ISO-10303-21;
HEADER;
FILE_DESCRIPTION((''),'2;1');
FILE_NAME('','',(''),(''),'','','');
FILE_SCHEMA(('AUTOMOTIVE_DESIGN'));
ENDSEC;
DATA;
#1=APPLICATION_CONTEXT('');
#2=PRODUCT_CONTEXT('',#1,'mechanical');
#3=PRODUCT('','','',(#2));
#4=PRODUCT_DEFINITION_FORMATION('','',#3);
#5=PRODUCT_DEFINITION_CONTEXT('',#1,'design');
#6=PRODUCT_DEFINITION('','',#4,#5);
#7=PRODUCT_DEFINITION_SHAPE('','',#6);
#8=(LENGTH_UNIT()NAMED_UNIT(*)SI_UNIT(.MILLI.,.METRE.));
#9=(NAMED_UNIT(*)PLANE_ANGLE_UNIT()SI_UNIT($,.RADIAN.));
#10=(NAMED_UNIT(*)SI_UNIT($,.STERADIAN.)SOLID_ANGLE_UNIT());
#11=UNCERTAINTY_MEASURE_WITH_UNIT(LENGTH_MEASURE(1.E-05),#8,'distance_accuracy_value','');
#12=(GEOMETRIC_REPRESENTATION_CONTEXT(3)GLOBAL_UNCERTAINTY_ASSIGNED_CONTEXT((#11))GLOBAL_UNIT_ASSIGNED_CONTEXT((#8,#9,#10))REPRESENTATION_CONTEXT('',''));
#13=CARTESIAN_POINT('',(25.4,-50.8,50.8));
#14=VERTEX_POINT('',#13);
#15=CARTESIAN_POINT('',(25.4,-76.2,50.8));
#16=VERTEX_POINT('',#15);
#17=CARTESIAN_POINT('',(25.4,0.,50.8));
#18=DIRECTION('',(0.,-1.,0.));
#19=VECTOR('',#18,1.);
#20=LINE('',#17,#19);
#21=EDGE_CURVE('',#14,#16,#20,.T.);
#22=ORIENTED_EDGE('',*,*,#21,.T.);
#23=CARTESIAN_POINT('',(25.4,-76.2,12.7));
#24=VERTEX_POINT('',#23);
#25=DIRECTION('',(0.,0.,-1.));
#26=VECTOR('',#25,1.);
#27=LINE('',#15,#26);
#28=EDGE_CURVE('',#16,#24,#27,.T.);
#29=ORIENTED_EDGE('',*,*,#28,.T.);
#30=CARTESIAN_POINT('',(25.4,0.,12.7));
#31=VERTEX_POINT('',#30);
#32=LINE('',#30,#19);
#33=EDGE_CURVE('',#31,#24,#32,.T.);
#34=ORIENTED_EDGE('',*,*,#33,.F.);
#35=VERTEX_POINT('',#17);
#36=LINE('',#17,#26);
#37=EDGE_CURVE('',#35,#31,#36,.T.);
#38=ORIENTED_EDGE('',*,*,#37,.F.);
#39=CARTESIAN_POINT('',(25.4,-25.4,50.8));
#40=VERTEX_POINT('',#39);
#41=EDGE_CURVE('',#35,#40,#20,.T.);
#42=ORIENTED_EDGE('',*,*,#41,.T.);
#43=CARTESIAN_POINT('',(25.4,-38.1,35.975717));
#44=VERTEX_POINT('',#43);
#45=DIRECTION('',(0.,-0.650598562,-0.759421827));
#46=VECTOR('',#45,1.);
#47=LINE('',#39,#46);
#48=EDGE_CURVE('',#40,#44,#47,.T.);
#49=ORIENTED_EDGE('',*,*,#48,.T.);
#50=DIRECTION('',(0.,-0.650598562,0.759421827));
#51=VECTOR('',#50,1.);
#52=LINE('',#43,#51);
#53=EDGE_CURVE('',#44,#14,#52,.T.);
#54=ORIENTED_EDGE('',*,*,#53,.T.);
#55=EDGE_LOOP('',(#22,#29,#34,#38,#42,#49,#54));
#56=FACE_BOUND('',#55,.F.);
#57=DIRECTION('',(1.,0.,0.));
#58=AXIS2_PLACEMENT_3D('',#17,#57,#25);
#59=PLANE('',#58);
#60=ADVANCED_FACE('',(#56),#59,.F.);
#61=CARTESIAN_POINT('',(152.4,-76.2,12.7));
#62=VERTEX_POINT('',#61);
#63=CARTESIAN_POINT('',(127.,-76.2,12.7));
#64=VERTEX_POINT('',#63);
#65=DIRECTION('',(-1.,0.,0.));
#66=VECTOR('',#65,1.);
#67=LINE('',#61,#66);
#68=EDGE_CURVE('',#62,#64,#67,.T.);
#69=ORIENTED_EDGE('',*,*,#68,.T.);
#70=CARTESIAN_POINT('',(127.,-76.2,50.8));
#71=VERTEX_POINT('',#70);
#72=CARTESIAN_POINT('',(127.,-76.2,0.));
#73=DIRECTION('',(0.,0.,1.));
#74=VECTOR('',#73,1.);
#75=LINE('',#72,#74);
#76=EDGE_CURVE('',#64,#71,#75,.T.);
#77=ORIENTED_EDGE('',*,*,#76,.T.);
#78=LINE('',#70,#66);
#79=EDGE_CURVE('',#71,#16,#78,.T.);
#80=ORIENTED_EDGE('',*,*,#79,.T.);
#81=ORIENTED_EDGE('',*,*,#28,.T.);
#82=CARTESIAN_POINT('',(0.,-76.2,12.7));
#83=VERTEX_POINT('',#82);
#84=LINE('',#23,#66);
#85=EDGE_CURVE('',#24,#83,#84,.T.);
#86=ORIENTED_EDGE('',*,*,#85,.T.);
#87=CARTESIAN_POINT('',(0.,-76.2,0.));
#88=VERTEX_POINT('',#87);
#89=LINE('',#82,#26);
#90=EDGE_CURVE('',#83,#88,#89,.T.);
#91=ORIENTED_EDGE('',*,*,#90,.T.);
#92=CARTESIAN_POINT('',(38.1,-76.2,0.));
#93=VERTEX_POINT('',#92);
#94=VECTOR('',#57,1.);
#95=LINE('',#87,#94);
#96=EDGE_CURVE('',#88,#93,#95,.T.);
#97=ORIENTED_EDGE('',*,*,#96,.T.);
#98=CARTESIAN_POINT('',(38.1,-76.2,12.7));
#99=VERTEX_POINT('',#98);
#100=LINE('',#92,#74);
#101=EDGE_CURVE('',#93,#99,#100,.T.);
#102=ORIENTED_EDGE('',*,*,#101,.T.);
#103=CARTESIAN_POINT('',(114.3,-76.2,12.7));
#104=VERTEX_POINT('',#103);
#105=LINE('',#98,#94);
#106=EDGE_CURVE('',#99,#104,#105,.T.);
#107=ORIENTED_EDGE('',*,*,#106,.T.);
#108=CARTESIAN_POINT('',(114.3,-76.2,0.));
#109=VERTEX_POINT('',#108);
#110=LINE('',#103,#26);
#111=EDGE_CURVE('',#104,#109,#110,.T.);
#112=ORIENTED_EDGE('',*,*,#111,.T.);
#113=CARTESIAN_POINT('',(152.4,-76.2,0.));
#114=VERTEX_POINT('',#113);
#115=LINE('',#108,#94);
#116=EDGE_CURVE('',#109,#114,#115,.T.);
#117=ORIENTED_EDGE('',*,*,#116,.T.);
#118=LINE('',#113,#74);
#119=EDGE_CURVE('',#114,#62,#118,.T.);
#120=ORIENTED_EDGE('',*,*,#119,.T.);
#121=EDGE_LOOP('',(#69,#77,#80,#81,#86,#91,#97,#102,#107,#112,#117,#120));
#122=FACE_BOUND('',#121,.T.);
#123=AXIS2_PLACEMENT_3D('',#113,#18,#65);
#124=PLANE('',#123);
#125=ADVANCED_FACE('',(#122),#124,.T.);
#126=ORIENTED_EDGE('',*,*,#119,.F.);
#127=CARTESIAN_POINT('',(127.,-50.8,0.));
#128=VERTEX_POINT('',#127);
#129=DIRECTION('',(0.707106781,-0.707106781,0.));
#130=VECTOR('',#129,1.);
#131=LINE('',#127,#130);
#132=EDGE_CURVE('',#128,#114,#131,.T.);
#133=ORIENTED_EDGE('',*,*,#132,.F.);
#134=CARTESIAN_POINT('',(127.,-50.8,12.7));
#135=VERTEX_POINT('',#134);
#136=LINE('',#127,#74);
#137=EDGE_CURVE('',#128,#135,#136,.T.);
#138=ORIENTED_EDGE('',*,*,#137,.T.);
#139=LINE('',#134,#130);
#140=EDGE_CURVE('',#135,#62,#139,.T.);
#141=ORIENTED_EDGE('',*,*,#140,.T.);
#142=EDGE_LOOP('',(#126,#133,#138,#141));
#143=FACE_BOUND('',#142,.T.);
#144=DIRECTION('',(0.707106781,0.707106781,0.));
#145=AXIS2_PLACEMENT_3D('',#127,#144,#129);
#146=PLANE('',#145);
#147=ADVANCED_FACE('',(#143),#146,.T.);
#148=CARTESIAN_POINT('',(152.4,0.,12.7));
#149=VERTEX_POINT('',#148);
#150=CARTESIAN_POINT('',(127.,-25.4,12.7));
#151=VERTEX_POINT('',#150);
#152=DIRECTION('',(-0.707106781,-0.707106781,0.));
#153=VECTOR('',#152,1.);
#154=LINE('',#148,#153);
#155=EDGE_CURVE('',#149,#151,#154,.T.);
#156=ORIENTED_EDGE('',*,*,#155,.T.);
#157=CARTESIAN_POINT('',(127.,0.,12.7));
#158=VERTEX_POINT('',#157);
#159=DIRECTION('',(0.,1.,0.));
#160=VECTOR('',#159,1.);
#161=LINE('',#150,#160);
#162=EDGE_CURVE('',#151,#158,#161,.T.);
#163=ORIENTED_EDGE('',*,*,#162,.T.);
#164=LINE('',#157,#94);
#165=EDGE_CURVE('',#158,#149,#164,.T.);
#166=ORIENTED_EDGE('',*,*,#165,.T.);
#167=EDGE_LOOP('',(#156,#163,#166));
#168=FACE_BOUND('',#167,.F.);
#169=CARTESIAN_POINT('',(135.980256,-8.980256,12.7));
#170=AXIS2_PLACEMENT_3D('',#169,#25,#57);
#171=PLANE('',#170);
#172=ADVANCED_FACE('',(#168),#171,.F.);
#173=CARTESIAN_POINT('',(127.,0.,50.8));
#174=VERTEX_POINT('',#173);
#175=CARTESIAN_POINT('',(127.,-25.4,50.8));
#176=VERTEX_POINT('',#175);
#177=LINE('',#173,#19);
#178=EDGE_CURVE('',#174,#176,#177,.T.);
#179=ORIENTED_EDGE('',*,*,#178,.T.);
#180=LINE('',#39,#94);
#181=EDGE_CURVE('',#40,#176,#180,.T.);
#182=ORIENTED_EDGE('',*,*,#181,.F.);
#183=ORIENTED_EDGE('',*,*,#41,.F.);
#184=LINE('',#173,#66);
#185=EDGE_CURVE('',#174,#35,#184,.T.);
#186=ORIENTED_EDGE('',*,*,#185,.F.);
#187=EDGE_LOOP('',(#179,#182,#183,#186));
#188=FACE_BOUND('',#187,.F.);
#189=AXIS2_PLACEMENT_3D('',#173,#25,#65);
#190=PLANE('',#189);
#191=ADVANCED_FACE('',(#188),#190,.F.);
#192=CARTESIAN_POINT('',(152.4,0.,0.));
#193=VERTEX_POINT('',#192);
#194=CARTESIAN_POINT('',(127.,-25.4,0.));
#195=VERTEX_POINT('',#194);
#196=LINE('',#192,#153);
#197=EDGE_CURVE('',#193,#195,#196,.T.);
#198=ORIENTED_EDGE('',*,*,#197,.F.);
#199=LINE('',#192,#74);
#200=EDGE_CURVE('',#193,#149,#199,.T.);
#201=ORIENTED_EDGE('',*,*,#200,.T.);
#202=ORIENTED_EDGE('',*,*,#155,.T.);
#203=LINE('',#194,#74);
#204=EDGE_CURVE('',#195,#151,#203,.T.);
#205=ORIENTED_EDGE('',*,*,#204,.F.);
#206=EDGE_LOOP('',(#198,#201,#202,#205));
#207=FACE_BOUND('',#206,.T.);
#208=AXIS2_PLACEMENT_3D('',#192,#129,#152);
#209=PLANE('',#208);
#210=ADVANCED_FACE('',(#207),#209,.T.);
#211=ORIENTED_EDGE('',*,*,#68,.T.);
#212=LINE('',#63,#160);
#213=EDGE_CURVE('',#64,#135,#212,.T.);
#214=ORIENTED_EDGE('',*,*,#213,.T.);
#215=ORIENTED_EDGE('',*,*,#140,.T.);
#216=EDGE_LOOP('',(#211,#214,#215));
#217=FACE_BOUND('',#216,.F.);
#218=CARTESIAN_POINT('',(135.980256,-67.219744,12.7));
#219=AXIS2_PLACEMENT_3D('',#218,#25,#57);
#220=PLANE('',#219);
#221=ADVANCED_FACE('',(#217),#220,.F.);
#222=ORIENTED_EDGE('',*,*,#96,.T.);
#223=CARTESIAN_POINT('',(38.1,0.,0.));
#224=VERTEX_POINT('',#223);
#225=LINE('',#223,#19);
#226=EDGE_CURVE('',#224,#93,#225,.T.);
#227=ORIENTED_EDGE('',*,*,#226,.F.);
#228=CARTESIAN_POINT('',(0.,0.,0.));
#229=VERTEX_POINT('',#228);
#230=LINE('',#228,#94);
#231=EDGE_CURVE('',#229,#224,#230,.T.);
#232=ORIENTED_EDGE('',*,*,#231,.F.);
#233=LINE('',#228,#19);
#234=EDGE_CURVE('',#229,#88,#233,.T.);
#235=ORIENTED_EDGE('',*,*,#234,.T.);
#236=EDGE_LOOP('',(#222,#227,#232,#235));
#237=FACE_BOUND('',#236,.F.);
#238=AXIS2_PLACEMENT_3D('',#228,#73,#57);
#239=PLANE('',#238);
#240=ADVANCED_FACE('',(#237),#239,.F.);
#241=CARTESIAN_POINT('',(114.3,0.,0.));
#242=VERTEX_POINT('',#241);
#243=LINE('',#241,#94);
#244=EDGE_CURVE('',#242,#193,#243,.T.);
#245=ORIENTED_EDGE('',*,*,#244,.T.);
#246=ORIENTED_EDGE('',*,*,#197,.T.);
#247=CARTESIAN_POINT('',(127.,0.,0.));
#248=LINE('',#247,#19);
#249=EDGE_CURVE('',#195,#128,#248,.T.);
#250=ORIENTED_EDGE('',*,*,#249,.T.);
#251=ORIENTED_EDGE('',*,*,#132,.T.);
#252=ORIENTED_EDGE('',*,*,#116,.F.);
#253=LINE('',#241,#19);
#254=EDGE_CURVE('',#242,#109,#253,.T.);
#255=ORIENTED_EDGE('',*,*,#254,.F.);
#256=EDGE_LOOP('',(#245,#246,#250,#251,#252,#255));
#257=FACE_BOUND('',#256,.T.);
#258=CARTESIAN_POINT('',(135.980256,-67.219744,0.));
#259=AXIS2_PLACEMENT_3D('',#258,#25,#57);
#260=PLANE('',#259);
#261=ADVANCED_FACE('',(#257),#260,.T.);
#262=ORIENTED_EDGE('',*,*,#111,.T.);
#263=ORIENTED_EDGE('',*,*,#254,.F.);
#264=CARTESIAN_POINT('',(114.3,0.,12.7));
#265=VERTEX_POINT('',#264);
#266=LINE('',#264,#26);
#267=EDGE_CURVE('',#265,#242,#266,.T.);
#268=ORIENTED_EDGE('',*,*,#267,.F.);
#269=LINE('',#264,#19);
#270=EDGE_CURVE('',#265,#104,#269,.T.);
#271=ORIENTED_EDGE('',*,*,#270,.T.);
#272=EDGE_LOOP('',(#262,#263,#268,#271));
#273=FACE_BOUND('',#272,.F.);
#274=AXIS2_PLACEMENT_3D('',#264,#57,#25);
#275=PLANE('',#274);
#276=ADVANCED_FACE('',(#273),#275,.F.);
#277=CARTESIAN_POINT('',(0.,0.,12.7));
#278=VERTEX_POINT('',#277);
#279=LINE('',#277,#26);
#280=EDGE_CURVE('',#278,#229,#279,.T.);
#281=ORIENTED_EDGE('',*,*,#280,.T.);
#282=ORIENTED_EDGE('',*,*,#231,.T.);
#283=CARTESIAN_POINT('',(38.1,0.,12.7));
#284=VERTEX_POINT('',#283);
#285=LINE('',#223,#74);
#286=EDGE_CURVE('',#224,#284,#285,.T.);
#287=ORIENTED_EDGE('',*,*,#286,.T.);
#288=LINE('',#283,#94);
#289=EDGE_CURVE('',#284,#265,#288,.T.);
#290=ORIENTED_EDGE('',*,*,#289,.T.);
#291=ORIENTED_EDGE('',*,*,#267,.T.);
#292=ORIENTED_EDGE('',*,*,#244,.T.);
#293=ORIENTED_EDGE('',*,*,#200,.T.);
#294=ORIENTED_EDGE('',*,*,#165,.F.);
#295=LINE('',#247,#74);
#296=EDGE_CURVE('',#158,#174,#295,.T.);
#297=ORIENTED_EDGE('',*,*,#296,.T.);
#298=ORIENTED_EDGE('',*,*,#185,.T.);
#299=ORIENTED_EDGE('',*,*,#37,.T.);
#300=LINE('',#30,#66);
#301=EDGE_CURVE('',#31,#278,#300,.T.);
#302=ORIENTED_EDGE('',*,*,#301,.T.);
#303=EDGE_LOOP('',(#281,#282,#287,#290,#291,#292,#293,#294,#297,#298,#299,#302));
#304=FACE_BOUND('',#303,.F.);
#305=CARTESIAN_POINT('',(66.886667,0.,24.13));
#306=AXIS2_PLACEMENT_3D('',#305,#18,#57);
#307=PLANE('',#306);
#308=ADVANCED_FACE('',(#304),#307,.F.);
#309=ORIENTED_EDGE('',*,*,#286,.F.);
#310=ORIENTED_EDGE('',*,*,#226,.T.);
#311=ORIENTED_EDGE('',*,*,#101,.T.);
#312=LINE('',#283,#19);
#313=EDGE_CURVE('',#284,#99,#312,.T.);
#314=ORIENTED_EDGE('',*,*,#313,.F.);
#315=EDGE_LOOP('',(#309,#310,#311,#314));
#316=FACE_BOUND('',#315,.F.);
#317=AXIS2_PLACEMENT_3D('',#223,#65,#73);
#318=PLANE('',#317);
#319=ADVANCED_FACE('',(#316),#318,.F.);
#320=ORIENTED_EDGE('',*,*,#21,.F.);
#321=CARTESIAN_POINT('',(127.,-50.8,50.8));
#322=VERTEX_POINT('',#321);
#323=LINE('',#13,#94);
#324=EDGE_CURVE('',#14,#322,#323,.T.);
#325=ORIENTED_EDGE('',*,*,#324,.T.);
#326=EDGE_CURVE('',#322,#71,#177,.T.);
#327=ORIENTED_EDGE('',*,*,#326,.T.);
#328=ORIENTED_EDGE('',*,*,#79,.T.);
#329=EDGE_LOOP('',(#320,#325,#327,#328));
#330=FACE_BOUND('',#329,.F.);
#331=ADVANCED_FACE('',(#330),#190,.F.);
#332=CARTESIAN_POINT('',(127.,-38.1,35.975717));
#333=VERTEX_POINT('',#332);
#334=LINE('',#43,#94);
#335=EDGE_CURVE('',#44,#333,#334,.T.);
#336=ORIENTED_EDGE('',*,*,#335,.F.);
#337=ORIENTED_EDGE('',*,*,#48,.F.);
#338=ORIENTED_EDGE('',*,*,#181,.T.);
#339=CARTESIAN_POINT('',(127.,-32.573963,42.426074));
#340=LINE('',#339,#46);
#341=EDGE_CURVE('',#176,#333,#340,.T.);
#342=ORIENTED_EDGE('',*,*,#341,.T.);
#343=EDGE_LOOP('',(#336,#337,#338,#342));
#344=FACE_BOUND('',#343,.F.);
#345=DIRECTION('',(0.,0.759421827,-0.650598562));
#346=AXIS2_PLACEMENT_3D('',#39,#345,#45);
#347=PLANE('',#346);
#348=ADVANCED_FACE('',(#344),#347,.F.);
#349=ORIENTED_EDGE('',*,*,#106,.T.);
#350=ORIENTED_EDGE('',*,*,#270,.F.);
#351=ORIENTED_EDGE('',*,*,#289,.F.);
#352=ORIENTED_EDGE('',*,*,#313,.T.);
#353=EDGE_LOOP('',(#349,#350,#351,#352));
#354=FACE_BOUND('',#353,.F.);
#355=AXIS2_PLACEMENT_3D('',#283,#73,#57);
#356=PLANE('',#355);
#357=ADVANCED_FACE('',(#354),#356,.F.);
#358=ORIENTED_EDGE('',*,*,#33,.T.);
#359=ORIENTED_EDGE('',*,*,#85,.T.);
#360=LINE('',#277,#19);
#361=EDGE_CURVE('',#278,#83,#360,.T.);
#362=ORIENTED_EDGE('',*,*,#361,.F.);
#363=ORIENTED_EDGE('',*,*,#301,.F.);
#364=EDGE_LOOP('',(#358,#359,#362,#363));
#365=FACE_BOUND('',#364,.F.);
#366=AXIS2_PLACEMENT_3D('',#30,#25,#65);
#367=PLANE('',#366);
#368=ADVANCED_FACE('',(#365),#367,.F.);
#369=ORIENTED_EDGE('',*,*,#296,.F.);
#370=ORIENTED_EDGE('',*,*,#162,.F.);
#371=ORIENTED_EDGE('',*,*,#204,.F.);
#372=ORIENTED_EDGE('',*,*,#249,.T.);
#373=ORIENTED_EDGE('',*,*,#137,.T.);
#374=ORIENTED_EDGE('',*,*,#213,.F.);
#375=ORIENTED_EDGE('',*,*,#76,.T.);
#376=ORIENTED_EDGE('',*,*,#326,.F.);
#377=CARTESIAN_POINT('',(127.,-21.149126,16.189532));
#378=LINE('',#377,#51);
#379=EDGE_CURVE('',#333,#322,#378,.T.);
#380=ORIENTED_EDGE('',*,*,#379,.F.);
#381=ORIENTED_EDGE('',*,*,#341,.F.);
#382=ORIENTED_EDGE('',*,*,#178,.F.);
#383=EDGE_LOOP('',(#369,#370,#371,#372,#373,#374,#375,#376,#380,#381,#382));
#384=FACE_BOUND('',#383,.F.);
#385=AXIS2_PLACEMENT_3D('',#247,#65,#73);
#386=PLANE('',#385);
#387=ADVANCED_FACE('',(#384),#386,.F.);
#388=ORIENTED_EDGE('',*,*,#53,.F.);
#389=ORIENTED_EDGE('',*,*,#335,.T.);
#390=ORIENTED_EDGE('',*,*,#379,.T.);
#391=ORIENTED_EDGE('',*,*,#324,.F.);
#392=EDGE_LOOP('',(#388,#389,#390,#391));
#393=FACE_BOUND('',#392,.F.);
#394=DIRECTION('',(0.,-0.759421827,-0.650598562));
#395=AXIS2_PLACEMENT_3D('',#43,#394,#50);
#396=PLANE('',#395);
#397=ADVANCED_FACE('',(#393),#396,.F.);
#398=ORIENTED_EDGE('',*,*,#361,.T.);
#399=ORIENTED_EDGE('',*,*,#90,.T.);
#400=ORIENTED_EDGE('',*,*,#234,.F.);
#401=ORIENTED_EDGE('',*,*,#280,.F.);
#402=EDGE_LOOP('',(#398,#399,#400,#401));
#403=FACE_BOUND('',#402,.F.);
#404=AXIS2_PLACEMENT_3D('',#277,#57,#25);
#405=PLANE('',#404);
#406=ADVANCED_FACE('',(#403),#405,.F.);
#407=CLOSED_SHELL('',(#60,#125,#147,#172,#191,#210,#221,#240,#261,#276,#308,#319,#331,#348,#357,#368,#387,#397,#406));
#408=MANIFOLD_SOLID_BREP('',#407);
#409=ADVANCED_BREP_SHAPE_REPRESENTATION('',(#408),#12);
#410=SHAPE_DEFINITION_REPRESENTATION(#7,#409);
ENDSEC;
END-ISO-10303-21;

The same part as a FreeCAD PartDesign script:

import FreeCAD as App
import Part
import Sketcher

V = App.Vector
Q = App.Units.Quantity


def add_polygon(sketch, points):
    """Adds a closed chain of lines whose ends are joined by coincident constraints."""
    first, n = sketch.GeometryCount, len(points)
    for a, b in zip(points, points[1:] + points[:1]):
        sketch.addGeometry(Part.LineSegment(App.Vector(*a, 0), App.Vector(*b, 0)), False)
    for i in range(n):
        sketch.addConstraint(Sketcher.Constraint("Coincident", first + i, 2, first + (i + 1) % n, 1))

doc = App.newDocument("Part")
body = doc.addObject("PartDesign::Body", "Body")

# Sketch on XZ plane
sketch1 = doc.addObject("Sketcher::SketchObject", "Sketch")
body.addObject(sketch1)
sketch1.AttachmentSupport = (doc.XZ_Plane, [""])
sketch1.MapMode = "FlatFace"
add_polygon(sketch1, [(0, 13), (0, 0), (38, 0), (38, 13), (114, 13), (114, 0), (127, 0), (127, 51), (25, 51), (25, 13)])  # lines 0-9
sketch1.addConstraint([
    Sketcher.Constraint("Vertical", 0),
    Sketcher.Constraint("Horizontal", 1),
    Sketcher.Constraint("Vertical", 2),
    Sketcher.Constraint("Horizontal", 3),
    Sketcher.Constraint("Vertical", 4),
    Sketcher.Constraint("Horizontal", 5),
    Sketcher.Constraint("Vertical", 6),
    Sketcher.Constraint("Horizontal", 7),
    Sketcher.Constraint("Vertical", 8),
    Sketcher.Constraint("Horizontal", 9),
    Sketcher.Constraint("Coincident", 0, 2, -1, 1),
    Sketcher.Constraint("PointOnObject", 4, 2, -1),
    Sketcher.Constraint("Horizontal", 3, 2, 8, 2),
    Sketcher.Constraint("Equal", 5, 0),
    Sketcher.Constraint("Equal", 1, 8),
    Sketcher.Constraint("DistanceX", 3, 1, 3, 2, Q("3 in")),
    Sketcher.Constraint("DistanceX", 7, 2, 7, 1, Q("4 in")),
    Sketcher.Constraint("DistanceX", 9, 2, 9, 1, Q("1 in")),
    Sketcher.Constraint("DistanceX", 1, 1, 1, 2, Q("1.5 in")),
])
pad1 = doc.addObject("PartDesign::Pad", "Pad")
body.addObject(pad1)
pad1.Profile = sketch1
pad1.Length = Q("3 in")

# Sketch on YZ plane
sketch2 = doc.addObject("Sketcher::SketchObject", "Sketch001")
body.addObject(sketch2)
sketch2.AttachmentSupport = (doc.YZ_Plane, [""])
sketch2.MapMode = "FlatFace"
sketch2.AttachmentOffset = App.Placement(V(0, 0, 1 * 25.4), App.Rotation())
add_polygon(sketch2, [(-51, 51), (-25, 51), (-38, 36)])  # lines 0-2
sketch2.addConstraint([
    Sketcher.Constraint("Horizontal", 0),
    Sketcher.Constraint("Equal", 1, 2),
    Sketcher.Constraint("DistanceX", 0, 1, 0, 2, Q("1 in")),
    Sketcher.Constraint("DistanceX", 0, 2, -1, 1, Q("1 in")),
    Sketcher.Constraint("DistanceY", -1, 1, 0, 2, Q("2 in")),
    Sketcher.Constraint("Distance", 1, 19.520486),
])
pocket1 = doc.addObject("PartDesign::Pocket", "Pocket")
body.addObject(pocket1)
pocket1.Profile = sketch2
pocket1.Length = Q("6 in")
pocket1.Reversed = True

# Sketch on XY plane
sketch3 = doc.addObject("Sketcher::SketchObject", "Sketch002")
body.addObject(sketch3)
sketch3.AttachmentSupport = (doc.XY_Plane, [""])
sketch3.MapMode = "FlatFace"
add_polygon(sketch3, [(152, -76), (127, -76), (127, -51)])  # lines 0-2
add_polygon(sketch3, [(127, -25), (127, 0), (152, 0)])  # lines 3-5
sketch3.addConstraint([
    Sketcher.Constraint("Horizontal", 0),
    Sketcher.Constraint("Vertical", 1),
    Sketcher.Constraint("Vertical", 3),
    Sketcher.Constraint("Horizontal", 4),
    Sketcher.Constraint("PointOnObject", 3, 2, -1),
    Sketcher.Constraint("Perpendicular", 2, 5),
    Sketcher.Constraint("Vertical", 1, 2, 3, 2),
    Sketcher.Constraint("Vertical", 2, 2, 4, 2),
    Sketcher.Constraint("Equal", 4, 1),
    Sketcher.Constraint("DistanceX", 0, 2, 0, 1, Q("1 in")),
    Sketcher.Constraint("DistanceX", -1, 1, 0, 2, Q("5 in")),
    Sketcher.Constraint("DistanceY", 0, 2, -1, 1, Q("3 in")),
])
pad2 = doc.addObject("PartDesign::Pad", "Pad001")
body.addObject(pad2)
pad2.Profile = sketch3
pad2.Length = Q("0.5 in")

doc.recompute()
